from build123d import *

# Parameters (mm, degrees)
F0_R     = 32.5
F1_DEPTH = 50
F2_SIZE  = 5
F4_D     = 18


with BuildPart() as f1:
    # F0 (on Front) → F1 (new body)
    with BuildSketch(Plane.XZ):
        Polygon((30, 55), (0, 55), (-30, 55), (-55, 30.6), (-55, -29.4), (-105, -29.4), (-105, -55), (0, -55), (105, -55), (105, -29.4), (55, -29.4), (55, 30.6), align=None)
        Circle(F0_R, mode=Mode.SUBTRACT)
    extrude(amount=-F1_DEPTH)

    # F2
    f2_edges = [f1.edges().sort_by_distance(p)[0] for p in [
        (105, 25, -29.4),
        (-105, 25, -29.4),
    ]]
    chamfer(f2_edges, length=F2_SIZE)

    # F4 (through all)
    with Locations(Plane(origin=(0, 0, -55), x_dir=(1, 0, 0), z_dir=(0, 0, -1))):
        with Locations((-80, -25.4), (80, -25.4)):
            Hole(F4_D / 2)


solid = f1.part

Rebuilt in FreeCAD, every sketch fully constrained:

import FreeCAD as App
import Part
import Sketcher
from FreeCAD import Vector


def edges_at(feature, points):
    """Names of the edges that pass closest to the given points."""
    edges = feature.Shape.Edges
    near = lambda p: min(range(len(edges)), key=lambda i: edges[i].distToShape(Part.Vertex(*p))[0])
    return sorted({f"Edge{near(p) + 1}" for p in points})


def add_polygon(sketch, points):
    """Adds a closed chain of lines whose ends are joined by coincident constraints."""
    first, n = sketch.GeometryCount, len(points)
    for a, b in zip(points, points[1:] + points[:1]):
        sketch.addGeometry(Part.LineSegment(App.Vector(*a, 0), App.Vector(*b, 0)), False)
    for i in range(n):
        sketch.addConstraint(Sketcher.Constraint("Coincident", first + i, 2, first + (i + 1) % n, 1))

doc = App.newDocument("Part")
params = doc.addObject("Spreadsheet::Sheet", "Params")
for row, (alias, value) in enumerate([
    ("sketch1_diameter", "65 mm"),
    ("sketch1_width", "60 mm"),
    ("sketch1_width2", "50 mm"),
    ("sketch1_width3", "210 mm"),
    ("sketch1_height", "25.6 mm"),
    ("pad1_length", "50 mm"),
    ("chamfer_size", "5 mm"),
    ("sketch2_diameter", "18 mm"),
    ("hole_diameter", "18 mm"),
], start=1):
    params.set(f"A{row}", alias)
    params.set(f"B{row}", "=" + value)
    params.setAlias(f"B{row}", alias)

body = doc.addObject("PartDesign::Body", "Body")

# Sketch on XZ plane
sketch1 = body.newObject("Sketcher::SketchObject", "Sketch")
sketch1.AttachmentSupport = (doc.getObject("XZ_Plane"), [""])
sketch1.MapMode = "FlatFace"
add_polygon(sketch1, [(30, 55), (-30, 55), (-55, 30.6), (-55, -29.4), (-105, -29.4), (-105, -55), (105, -55), (105, -29.4), (55, -29.4), (55, 30.6)])  # lines 0-9
sketch1.addGeometry(Part.Circle(Vector(0, 0, 0), Vector(0, 0, 1), 32.5), False)  # 10
sketch1.addConstraint([
    Sketcher.Constraint("Horizontal", 0),
    Sketcher.Constraint("Vertical", 2),
    Sketcher.Constraint("Horizontal", 3),
    Sketcher.Constraint("Vertical", 4),
    Sketcher.Constraint("Horizontal", 5),
    Sketcher.Constraint("Vertical", 6),
    Sketcher.Constraint("Horizontal", 7),
    Sketcher.Constraint("Vertical", 8),
    Sketcher.Constraint("Coincident", 10, 3, -1, 1),
    Sketcher.Constraint("Symmetric", 3, 2, 6, 2, -2),
    Sketcher.Constraint("Symmetric", 1, 2, 8, 2, -2),
    Sketcher.Constraint("Equal", 0, 2),
    Sketcher.Constraint("Equal", 1, 9),
    Sketcher.Constraint("Diameter", 10, 65.0),
    Sketcher.Constraint("DistanceX", 0, 2, 0, 1, 60.0),
    Sketcher.Constraint("DistanceX", 3, 2, 3, 1, 50.0),
    Sketcher.Constraint("DistanceX", 5, 1, 5, 2, 210.0),
    Sketcher.Constraint("DistanceY", 4, 2, 4, 1, 25.6),
    Sketcher.Constraint("DistanceY", -1, 1, 0, 2, 55.0),
    Sketcher.Constraint("DistanceY", 4, 2, -1, 1, 55.0),
])
sketch1.setExpression("Constraints[23]", "Params.sketch1_diameter")
sketch1.setExpression("Constraints[24]", "Params.sketch1_width")
sketch1.setExpression("Constraints[25]", "Params.sketch1_width2")
sketch1.setExpression("Constraints[26]", "Params.sketch1_width3")
sketch1.setExpression("Constraints[27]", "Params.sketch1_height")
pad1 = body.newObject("PartDesign::Pad", "Pad")
pad1.Profile = sketch1
pad1.setExpression("Length", "Params.pad1_length")
pad1.Reversed = True
doc.recompute()

chamfer = body.newObject("PartDesign::Chamfer", "Chamfer")
chamfer.Base = (pad1, edges_at(pad1, [(105, 25, -29.4), (-105, 25, -29.4)]))
chamfer.setExpression("Size", "Params.chamfer_size")

# Sketch on XY plane
sketch2 = body.newObject("Sketcher::SketchObject", "Sketch001")
sketch2.AttachmentSupport = (doc.getObject("XY_Plane"), [""])
sketch2.MapMode = "FlatFace"
sketch2.AttachmentOffset = App.Placement(Vector(0, 0, -55), App.Rotation())
sketch2.addGeometry([
    Part.Circle(Vector(-80, 25.4, 0), Vector(0, 0, 1), 9),
    Part.Circle(Vector(80, 25.4, 0), Vector(0, 0, 1), 9),
], False)
sketch2.addConstraint([
    Sketcher.Constraint("Equal", 0, 1),
    Sketcher.Constraint("Symmetric", 0, 3, 1, 3, -2),
    Sketcher.Constraint("Diameter", 0, 18.0),
    Sketcher.Constraint("DistanceX", 0, 3, -1, 1, 80.0),
    Sketcher.Constraint("DistanceY", -1, 1, 0, 3, 25.4),
])
sketch2.setExpression("Constraints[2]", "Params.sketch2_diameter")
doc.recompute()
hole = body.newObject("PartDesign::Hole", "Hole")
hole.Profile = sketch2
hole.ThreadType = "None"
hole.setExpression("Diameter", "Params.hole_diameter")
hole.DepthType = "ThroughAll"
hole.Reversed = True

doc.recompute()
